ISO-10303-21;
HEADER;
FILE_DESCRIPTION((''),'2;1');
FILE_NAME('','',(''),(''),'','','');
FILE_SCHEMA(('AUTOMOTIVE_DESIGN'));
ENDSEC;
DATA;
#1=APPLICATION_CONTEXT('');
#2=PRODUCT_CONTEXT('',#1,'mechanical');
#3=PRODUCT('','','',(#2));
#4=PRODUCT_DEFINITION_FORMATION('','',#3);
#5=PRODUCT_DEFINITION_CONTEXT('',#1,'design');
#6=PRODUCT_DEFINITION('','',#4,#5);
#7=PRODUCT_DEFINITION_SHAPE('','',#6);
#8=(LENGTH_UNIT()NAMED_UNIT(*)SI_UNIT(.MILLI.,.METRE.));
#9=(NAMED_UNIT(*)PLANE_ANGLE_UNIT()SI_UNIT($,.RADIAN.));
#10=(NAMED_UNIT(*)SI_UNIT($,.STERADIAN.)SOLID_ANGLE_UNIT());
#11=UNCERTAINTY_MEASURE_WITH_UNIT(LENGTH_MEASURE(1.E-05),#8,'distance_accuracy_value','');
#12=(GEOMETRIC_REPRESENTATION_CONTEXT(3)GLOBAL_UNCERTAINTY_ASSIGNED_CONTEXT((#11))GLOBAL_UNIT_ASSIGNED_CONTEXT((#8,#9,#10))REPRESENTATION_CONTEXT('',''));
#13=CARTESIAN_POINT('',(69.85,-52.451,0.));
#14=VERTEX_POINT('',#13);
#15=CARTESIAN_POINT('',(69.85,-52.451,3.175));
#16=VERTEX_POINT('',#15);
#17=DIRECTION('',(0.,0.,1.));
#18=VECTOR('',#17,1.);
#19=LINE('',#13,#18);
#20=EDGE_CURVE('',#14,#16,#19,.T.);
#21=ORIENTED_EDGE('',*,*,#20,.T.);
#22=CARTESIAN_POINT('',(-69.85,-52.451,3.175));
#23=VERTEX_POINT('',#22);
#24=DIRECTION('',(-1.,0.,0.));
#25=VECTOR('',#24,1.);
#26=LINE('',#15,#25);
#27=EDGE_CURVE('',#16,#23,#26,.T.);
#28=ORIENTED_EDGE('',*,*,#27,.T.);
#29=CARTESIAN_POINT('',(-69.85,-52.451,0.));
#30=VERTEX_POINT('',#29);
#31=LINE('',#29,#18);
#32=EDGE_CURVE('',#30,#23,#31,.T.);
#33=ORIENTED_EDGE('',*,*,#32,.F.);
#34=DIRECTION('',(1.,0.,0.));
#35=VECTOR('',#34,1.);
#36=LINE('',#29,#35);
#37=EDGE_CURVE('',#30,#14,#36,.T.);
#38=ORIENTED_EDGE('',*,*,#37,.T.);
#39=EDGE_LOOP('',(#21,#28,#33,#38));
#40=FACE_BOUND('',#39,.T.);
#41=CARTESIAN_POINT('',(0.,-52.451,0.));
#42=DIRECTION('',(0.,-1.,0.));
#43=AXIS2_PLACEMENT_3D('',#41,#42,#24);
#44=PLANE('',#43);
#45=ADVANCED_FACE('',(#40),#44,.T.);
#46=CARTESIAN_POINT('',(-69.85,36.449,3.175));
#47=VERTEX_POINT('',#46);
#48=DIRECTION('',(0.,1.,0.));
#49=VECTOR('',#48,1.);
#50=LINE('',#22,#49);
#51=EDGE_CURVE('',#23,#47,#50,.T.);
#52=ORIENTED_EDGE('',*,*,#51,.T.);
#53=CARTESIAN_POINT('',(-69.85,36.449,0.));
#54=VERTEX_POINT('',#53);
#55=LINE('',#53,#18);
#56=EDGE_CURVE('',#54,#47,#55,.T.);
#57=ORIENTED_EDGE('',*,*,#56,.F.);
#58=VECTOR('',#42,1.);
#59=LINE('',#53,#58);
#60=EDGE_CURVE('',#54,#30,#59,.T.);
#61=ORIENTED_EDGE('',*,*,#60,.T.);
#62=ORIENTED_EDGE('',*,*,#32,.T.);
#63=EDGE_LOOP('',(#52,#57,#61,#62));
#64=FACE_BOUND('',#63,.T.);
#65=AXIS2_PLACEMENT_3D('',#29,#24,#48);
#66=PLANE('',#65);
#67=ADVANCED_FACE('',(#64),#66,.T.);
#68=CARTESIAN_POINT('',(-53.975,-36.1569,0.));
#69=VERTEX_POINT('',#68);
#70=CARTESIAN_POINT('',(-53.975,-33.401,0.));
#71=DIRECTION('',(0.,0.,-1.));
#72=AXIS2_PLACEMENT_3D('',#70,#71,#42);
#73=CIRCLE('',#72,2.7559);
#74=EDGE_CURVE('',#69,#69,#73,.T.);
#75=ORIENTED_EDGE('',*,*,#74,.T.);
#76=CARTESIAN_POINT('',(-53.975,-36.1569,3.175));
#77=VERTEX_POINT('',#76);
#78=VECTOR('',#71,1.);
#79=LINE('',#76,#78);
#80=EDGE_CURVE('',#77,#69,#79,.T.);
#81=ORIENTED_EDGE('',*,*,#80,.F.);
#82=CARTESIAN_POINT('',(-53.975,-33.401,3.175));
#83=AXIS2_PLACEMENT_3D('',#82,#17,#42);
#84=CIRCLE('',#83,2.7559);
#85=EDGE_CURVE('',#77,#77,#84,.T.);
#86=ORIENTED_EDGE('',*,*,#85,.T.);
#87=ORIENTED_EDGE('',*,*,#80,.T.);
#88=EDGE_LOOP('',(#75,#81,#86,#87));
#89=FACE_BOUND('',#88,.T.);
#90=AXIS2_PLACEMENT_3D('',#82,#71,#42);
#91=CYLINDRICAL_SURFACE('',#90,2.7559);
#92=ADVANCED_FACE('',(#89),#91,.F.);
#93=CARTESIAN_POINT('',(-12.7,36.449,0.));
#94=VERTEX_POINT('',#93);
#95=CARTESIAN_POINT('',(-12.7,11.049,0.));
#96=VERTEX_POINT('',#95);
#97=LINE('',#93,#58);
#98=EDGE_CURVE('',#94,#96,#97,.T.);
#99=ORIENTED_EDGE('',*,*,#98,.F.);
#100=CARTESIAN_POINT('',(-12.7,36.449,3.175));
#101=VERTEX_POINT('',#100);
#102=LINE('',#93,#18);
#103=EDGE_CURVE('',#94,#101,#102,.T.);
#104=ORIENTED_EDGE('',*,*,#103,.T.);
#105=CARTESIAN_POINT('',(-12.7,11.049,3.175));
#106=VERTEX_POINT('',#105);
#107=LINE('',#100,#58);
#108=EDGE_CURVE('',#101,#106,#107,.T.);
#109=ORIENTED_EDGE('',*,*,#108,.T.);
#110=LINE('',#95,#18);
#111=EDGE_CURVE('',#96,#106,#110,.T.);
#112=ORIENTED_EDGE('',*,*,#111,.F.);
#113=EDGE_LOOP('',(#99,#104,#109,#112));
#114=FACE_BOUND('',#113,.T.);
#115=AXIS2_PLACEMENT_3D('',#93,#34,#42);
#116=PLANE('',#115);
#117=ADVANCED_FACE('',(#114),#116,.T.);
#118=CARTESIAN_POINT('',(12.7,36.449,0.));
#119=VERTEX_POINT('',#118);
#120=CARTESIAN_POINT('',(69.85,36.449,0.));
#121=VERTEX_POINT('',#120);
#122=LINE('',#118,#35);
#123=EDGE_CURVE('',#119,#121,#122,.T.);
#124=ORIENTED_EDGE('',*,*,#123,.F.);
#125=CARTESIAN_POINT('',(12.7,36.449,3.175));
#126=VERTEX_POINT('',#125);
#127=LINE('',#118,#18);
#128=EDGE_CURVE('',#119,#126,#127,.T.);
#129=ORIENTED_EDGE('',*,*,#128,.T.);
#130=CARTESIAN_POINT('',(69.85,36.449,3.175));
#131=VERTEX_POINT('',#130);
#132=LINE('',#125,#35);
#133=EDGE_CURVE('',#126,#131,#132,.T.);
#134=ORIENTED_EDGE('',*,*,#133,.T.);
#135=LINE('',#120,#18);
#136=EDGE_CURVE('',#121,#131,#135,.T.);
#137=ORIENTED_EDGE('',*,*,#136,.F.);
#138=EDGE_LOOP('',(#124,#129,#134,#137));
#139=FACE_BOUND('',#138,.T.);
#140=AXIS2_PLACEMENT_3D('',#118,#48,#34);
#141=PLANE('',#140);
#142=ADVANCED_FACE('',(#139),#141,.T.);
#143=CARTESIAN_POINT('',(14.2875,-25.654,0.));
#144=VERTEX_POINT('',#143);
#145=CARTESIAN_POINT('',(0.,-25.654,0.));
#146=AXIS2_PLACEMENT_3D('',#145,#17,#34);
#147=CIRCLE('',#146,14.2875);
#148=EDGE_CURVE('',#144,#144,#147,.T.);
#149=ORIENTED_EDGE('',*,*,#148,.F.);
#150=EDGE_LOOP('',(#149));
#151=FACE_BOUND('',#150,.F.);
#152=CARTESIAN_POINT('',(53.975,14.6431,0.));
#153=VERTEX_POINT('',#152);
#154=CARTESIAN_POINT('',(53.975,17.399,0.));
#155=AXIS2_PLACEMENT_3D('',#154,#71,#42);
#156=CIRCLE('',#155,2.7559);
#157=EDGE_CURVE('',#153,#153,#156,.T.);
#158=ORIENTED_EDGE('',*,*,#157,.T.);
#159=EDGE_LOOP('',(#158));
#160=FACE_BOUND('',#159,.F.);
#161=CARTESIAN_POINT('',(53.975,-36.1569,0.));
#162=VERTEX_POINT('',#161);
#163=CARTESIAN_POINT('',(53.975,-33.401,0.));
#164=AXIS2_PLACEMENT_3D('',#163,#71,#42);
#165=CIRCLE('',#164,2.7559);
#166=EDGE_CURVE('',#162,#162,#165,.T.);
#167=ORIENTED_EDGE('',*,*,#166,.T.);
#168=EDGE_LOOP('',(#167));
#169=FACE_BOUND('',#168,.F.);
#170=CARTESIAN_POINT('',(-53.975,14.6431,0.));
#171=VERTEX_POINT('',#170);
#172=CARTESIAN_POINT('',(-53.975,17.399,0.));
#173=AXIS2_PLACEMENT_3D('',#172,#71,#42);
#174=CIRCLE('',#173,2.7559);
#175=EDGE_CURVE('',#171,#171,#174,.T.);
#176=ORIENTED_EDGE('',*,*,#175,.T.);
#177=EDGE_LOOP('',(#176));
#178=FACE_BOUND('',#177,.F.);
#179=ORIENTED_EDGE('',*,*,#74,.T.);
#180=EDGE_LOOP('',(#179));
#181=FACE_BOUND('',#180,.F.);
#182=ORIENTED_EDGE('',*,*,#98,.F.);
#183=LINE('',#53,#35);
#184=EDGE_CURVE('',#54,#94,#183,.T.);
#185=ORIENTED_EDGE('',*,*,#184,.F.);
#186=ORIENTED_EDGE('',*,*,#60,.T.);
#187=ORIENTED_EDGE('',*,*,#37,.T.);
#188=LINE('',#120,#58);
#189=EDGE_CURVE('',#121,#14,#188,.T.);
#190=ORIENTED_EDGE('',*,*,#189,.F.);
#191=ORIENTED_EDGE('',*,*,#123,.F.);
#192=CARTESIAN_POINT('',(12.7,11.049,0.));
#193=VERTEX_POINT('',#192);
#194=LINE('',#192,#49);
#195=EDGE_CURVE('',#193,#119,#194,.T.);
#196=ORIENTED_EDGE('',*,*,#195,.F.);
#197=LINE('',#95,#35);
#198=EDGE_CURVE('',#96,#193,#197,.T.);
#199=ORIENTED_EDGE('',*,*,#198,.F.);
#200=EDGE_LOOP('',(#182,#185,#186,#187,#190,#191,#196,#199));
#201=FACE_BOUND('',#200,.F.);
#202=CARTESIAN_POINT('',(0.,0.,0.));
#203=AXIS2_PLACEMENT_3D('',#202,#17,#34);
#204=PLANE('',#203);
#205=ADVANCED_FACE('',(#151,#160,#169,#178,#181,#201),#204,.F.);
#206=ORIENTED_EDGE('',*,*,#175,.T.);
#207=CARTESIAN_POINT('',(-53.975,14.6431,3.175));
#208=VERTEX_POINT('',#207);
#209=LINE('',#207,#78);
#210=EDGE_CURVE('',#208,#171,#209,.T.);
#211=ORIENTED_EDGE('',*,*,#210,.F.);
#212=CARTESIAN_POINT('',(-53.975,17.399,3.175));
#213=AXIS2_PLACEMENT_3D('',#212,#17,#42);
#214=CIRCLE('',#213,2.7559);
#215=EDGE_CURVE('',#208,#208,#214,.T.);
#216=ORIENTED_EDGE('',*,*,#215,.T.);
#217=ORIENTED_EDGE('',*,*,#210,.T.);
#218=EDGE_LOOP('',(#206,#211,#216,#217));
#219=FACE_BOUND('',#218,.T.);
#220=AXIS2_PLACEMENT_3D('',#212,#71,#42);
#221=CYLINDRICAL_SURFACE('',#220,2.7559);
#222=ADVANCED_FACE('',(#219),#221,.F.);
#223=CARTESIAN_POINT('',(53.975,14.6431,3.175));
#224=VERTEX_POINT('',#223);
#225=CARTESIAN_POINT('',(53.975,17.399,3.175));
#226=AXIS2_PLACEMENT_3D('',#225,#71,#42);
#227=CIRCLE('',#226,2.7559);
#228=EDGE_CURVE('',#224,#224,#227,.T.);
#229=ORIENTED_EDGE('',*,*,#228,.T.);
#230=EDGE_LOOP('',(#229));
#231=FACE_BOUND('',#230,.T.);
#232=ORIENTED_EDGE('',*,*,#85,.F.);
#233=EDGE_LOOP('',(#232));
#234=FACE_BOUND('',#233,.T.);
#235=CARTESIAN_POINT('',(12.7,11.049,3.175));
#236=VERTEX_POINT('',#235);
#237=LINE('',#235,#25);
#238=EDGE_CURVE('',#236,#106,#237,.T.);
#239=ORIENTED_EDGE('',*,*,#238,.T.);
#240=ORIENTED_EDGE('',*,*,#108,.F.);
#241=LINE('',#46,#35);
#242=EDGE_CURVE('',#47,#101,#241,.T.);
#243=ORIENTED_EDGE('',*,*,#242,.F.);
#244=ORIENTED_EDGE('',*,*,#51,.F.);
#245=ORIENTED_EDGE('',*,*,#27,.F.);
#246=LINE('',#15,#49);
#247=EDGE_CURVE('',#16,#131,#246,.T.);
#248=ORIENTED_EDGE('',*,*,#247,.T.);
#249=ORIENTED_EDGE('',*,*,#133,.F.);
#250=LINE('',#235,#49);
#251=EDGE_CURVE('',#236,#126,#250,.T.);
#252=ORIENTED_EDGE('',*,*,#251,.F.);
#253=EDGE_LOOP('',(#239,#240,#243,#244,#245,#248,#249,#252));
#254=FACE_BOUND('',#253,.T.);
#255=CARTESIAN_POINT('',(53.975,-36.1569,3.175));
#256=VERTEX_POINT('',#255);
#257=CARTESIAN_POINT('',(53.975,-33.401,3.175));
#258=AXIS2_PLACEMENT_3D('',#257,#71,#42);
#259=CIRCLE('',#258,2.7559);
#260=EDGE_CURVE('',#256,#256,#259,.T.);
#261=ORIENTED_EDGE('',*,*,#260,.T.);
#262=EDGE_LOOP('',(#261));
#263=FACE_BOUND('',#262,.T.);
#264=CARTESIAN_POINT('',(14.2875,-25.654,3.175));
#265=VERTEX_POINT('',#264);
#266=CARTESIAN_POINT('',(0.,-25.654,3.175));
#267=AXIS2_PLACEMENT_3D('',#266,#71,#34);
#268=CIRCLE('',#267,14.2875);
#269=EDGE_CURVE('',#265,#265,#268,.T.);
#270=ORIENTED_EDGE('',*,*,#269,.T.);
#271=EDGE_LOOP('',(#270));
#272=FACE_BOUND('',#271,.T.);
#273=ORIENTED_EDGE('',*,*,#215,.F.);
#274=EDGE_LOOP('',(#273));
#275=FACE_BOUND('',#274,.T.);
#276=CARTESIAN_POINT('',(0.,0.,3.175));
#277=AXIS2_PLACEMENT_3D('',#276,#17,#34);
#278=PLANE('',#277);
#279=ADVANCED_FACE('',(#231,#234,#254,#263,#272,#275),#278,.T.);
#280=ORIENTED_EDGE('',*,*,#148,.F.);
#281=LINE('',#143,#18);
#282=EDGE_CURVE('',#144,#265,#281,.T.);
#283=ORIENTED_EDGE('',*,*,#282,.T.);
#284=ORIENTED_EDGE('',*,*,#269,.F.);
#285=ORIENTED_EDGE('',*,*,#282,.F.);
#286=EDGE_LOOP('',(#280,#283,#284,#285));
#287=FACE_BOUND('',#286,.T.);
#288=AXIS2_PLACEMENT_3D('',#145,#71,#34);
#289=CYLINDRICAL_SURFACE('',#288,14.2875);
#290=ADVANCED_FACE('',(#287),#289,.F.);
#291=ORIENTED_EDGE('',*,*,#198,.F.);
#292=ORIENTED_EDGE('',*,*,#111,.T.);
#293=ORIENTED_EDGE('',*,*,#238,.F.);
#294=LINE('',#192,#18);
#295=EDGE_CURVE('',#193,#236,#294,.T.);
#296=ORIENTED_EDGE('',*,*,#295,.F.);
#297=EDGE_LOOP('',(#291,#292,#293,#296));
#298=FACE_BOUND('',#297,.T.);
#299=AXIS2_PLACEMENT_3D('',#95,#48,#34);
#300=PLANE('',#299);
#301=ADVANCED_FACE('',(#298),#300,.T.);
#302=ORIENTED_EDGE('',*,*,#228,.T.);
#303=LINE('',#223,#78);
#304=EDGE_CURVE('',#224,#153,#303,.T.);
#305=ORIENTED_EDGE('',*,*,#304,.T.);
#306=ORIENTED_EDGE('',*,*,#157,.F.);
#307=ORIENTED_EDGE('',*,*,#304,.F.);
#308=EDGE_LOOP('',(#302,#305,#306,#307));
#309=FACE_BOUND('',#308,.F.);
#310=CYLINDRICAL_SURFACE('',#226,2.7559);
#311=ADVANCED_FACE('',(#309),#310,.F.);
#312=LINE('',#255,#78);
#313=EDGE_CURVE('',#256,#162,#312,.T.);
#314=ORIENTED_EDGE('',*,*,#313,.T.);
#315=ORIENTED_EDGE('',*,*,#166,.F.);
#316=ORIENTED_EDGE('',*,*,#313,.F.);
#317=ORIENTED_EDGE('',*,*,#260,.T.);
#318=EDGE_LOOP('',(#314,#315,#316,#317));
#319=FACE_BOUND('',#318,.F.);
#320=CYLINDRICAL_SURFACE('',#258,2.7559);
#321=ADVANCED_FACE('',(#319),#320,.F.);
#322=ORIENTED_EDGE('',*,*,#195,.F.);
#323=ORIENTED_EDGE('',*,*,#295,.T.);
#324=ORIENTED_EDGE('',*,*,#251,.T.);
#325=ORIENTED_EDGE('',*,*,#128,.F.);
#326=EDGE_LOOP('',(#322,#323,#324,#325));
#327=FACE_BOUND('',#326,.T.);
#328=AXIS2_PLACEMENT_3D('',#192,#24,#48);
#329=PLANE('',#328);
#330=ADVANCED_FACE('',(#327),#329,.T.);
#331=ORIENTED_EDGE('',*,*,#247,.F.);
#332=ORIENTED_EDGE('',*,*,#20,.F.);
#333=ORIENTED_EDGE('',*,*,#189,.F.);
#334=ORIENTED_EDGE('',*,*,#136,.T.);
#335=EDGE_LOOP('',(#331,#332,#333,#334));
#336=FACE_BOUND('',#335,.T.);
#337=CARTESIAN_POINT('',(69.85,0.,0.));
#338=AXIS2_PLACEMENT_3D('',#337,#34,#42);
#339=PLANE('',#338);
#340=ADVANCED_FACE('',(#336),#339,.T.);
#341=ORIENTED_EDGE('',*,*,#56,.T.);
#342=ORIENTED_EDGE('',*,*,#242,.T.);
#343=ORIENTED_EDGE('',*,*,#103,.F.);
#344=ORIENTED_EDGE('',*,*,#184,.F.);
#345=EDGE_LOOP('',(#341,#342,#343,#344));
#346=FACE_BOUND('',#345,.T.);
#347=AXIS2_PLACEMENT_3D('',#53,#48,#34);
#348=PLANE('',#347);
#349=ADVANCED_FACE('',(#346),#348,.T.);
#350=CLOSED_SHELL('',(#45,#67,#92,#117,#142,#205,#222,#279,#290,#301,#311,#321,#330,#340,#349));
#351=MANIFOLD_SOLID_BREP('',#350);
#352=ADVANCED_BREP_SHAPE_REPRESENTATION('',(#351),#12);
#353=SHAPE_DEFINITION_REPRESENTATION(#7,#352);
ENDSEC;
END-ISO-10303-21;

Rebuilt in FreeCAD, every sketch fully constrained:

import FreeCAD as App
import Part
import Sketcher

V = App.Vector
Q = App.Units.Quantity


def add_polygon(sketch, points):
    """Adds a closed chain of lines whose ends are joined by coincident constraints."""
    first, n = sketch.GeometryCount, len(points)
    for a, b in zip(points, points[1:] + points[:1]):
        sketch.addGeometry(Part.LineSegment(App.Vector(*a, 0), App.Vector(*b, 0)), False)
    for i in range(n):
        sketch.addConstraint(Sketcher.Constraint("Coincident", first + i, 2, first + (i + 1) % n, 1))

doc = App.newDocument("Part")
params = doc.addObject("Spreadsheet::Sheet", "Params")
for row, (alias, value) in enumerate([
    ("sketch1_width", "1 in"),
    ("sketch1_diameter", "1.125 in"),
    ("sketch1_width2", "5.5 in"),
    ("sketch1_height", "3.5 in"),
    ("pad1_length", "0.125 in"),
    ("sketch2_diameter", "0.217 in"),
    ("hole_diameter", "0.217 in"),
], start=1):
    params.set(f"A{row}", alias)
    params.set(f"B{row}", "=" + value)
    params.setAlias(f"B{row}", alias)

body = doc.addObject("PartDesign::Body", "Body")

# Sketch on XY plane
sketch1 = doc.addObject("Sketcher::SketchObject", "Sketch")
body.addObject(sketch1)
sketch1.AttachmentSupport = (doc.XY_Plane, [""])
sketch1.MapMode = "FlatFace"
add_polygon(sketch1, [(-70, -52), (70, -52), (70, 36), (13, 36), (13, 11), (-13, 11), (-13, 36), (-70, 36)])  # lines 0-7
sketch1.addGeometry(Part.Circle(V(0, -26, 0), V(0, 0, 1), 14), False)  # 8
sketch1.addConstraint([
    Sketcher.Constraint("Horizontal", 0),
    Sketcher.Constraint("Vertical", 1),
    Sketcher.Constraint("Horizontal", 2),
    Sketcher.Constraint("Vertical", 3),
    Sketcher.Constraint("Horizontal", 4),
    Sketcher.Constraint("Vertical", 5),
    Sketcher.Constraint("Horizontal", 6),
    Sketcher.Constraint("Vertical", 7),
    Sketcher.Constraint("Symmetric", 2, 2, 5, 2, -2),
    Sketcher.Constraint("PointOnObject", 8, 3, -2),
    Sketcher.Constraint("Equal", 2, 6),
    Sketcher.Constraint("Equal", 4, 3),
    Sketcher.Constraint("DistanceX", 4, 2, 4, 1, Q("1 in")),
    Sketcher.Constraint("Diameter", 8, Q("1.125 in")),
    Sketcher.Constraint("DistanceX", 0, 1, 0, 2, Q("5.5 in")),
    Sketcher.Constraint("DistanceY", 1, 1, 1, 2, Q("3.5 in")),
    Sketcher.Constraint("DistanceY", 8, 3, 1, 2, Q("2.445 in")),
    Sketcher.Constraint("DistanceY", 8, 3, -1, 1, Q("1.01 in")),
])
sketch1.setExpression("Constraints[20]", "Params.sketch1_width")
sketch1.setExpression("Constraints[21]", "Params.sketch1_diameter")
sketch1.setExpression("Constraints[22]", "Params.sketch1_width2")
sketch1.setExpression("Constraints[23]", "Params.sketch1_height")
pad1 = doc.addObject("PartDesign::Pad", "Pad")
body.addObject(pad1)
pad1.Profile = sketch1
pad1.setExpression("Length", "Params.pad1_length")

# Sketch on XY plane
sketch2 = doc.addObject("Sketcher::SketchObject", "Sketch001")
body.addObject(sketch2)
sketch2.AttachmentSupport = (doc.XY_Plane, [""])
sketch2.MapMode = "FlatFace"
sketch2.AttachmentOffset = App.Placement(V(0, 0, 0.125 * 25.4), App.Rotation())
sketch2.addGeometry([
    Part.Circle(V(54, 17.4, 0), V(0, 0, 1), 2.8),
    Part.Circle(V(54, -33.4, 0), V(0, 0, 1), 2.8),
], False)
sketch2.addConstraint([
    Sketcher.Constraint("Equal", 0, 1),
    Sketcher.Constraint("Vertical", 0, 3, 1, 3),
    Sketcher.Constraint("Diameter", 0, Q("0.217 in")),
    Sketcher.Constraint("DistanceY", 1, 3, 0, 3, Q("2 in")),
    Sketcher.Constraint("DistanceX", -1, 1, 0, 3, Q("2.125 in")),
    Sketcher.Constraint("DistanceY", -1, 1, 0, 3, Q("0.685 in")),
])
sketch2.setExpression("Constraints[2]", "Params.sketch2_diameter")
doc.recompute()
hole = doc.addObject("PartDesign::Hole", "Hole")
body.addObject(hole)
hole.Profile = sketch2
hole.ThreadType = "None"
hole.setExpression("Diameter", "Params.hole_diameter")
hole.DepthType = "ThroughAll"
doc.recompute()

mirrored = doc.addObject("PartDesign::Mirrored", "Mirrored")
body.addObject(mirrored)
mirrored.Originals = [hole]
mirrored.MirrorPlane = (doc.YZ_Plane, [""])
body.Tip = mirrored

doc.recompute()
